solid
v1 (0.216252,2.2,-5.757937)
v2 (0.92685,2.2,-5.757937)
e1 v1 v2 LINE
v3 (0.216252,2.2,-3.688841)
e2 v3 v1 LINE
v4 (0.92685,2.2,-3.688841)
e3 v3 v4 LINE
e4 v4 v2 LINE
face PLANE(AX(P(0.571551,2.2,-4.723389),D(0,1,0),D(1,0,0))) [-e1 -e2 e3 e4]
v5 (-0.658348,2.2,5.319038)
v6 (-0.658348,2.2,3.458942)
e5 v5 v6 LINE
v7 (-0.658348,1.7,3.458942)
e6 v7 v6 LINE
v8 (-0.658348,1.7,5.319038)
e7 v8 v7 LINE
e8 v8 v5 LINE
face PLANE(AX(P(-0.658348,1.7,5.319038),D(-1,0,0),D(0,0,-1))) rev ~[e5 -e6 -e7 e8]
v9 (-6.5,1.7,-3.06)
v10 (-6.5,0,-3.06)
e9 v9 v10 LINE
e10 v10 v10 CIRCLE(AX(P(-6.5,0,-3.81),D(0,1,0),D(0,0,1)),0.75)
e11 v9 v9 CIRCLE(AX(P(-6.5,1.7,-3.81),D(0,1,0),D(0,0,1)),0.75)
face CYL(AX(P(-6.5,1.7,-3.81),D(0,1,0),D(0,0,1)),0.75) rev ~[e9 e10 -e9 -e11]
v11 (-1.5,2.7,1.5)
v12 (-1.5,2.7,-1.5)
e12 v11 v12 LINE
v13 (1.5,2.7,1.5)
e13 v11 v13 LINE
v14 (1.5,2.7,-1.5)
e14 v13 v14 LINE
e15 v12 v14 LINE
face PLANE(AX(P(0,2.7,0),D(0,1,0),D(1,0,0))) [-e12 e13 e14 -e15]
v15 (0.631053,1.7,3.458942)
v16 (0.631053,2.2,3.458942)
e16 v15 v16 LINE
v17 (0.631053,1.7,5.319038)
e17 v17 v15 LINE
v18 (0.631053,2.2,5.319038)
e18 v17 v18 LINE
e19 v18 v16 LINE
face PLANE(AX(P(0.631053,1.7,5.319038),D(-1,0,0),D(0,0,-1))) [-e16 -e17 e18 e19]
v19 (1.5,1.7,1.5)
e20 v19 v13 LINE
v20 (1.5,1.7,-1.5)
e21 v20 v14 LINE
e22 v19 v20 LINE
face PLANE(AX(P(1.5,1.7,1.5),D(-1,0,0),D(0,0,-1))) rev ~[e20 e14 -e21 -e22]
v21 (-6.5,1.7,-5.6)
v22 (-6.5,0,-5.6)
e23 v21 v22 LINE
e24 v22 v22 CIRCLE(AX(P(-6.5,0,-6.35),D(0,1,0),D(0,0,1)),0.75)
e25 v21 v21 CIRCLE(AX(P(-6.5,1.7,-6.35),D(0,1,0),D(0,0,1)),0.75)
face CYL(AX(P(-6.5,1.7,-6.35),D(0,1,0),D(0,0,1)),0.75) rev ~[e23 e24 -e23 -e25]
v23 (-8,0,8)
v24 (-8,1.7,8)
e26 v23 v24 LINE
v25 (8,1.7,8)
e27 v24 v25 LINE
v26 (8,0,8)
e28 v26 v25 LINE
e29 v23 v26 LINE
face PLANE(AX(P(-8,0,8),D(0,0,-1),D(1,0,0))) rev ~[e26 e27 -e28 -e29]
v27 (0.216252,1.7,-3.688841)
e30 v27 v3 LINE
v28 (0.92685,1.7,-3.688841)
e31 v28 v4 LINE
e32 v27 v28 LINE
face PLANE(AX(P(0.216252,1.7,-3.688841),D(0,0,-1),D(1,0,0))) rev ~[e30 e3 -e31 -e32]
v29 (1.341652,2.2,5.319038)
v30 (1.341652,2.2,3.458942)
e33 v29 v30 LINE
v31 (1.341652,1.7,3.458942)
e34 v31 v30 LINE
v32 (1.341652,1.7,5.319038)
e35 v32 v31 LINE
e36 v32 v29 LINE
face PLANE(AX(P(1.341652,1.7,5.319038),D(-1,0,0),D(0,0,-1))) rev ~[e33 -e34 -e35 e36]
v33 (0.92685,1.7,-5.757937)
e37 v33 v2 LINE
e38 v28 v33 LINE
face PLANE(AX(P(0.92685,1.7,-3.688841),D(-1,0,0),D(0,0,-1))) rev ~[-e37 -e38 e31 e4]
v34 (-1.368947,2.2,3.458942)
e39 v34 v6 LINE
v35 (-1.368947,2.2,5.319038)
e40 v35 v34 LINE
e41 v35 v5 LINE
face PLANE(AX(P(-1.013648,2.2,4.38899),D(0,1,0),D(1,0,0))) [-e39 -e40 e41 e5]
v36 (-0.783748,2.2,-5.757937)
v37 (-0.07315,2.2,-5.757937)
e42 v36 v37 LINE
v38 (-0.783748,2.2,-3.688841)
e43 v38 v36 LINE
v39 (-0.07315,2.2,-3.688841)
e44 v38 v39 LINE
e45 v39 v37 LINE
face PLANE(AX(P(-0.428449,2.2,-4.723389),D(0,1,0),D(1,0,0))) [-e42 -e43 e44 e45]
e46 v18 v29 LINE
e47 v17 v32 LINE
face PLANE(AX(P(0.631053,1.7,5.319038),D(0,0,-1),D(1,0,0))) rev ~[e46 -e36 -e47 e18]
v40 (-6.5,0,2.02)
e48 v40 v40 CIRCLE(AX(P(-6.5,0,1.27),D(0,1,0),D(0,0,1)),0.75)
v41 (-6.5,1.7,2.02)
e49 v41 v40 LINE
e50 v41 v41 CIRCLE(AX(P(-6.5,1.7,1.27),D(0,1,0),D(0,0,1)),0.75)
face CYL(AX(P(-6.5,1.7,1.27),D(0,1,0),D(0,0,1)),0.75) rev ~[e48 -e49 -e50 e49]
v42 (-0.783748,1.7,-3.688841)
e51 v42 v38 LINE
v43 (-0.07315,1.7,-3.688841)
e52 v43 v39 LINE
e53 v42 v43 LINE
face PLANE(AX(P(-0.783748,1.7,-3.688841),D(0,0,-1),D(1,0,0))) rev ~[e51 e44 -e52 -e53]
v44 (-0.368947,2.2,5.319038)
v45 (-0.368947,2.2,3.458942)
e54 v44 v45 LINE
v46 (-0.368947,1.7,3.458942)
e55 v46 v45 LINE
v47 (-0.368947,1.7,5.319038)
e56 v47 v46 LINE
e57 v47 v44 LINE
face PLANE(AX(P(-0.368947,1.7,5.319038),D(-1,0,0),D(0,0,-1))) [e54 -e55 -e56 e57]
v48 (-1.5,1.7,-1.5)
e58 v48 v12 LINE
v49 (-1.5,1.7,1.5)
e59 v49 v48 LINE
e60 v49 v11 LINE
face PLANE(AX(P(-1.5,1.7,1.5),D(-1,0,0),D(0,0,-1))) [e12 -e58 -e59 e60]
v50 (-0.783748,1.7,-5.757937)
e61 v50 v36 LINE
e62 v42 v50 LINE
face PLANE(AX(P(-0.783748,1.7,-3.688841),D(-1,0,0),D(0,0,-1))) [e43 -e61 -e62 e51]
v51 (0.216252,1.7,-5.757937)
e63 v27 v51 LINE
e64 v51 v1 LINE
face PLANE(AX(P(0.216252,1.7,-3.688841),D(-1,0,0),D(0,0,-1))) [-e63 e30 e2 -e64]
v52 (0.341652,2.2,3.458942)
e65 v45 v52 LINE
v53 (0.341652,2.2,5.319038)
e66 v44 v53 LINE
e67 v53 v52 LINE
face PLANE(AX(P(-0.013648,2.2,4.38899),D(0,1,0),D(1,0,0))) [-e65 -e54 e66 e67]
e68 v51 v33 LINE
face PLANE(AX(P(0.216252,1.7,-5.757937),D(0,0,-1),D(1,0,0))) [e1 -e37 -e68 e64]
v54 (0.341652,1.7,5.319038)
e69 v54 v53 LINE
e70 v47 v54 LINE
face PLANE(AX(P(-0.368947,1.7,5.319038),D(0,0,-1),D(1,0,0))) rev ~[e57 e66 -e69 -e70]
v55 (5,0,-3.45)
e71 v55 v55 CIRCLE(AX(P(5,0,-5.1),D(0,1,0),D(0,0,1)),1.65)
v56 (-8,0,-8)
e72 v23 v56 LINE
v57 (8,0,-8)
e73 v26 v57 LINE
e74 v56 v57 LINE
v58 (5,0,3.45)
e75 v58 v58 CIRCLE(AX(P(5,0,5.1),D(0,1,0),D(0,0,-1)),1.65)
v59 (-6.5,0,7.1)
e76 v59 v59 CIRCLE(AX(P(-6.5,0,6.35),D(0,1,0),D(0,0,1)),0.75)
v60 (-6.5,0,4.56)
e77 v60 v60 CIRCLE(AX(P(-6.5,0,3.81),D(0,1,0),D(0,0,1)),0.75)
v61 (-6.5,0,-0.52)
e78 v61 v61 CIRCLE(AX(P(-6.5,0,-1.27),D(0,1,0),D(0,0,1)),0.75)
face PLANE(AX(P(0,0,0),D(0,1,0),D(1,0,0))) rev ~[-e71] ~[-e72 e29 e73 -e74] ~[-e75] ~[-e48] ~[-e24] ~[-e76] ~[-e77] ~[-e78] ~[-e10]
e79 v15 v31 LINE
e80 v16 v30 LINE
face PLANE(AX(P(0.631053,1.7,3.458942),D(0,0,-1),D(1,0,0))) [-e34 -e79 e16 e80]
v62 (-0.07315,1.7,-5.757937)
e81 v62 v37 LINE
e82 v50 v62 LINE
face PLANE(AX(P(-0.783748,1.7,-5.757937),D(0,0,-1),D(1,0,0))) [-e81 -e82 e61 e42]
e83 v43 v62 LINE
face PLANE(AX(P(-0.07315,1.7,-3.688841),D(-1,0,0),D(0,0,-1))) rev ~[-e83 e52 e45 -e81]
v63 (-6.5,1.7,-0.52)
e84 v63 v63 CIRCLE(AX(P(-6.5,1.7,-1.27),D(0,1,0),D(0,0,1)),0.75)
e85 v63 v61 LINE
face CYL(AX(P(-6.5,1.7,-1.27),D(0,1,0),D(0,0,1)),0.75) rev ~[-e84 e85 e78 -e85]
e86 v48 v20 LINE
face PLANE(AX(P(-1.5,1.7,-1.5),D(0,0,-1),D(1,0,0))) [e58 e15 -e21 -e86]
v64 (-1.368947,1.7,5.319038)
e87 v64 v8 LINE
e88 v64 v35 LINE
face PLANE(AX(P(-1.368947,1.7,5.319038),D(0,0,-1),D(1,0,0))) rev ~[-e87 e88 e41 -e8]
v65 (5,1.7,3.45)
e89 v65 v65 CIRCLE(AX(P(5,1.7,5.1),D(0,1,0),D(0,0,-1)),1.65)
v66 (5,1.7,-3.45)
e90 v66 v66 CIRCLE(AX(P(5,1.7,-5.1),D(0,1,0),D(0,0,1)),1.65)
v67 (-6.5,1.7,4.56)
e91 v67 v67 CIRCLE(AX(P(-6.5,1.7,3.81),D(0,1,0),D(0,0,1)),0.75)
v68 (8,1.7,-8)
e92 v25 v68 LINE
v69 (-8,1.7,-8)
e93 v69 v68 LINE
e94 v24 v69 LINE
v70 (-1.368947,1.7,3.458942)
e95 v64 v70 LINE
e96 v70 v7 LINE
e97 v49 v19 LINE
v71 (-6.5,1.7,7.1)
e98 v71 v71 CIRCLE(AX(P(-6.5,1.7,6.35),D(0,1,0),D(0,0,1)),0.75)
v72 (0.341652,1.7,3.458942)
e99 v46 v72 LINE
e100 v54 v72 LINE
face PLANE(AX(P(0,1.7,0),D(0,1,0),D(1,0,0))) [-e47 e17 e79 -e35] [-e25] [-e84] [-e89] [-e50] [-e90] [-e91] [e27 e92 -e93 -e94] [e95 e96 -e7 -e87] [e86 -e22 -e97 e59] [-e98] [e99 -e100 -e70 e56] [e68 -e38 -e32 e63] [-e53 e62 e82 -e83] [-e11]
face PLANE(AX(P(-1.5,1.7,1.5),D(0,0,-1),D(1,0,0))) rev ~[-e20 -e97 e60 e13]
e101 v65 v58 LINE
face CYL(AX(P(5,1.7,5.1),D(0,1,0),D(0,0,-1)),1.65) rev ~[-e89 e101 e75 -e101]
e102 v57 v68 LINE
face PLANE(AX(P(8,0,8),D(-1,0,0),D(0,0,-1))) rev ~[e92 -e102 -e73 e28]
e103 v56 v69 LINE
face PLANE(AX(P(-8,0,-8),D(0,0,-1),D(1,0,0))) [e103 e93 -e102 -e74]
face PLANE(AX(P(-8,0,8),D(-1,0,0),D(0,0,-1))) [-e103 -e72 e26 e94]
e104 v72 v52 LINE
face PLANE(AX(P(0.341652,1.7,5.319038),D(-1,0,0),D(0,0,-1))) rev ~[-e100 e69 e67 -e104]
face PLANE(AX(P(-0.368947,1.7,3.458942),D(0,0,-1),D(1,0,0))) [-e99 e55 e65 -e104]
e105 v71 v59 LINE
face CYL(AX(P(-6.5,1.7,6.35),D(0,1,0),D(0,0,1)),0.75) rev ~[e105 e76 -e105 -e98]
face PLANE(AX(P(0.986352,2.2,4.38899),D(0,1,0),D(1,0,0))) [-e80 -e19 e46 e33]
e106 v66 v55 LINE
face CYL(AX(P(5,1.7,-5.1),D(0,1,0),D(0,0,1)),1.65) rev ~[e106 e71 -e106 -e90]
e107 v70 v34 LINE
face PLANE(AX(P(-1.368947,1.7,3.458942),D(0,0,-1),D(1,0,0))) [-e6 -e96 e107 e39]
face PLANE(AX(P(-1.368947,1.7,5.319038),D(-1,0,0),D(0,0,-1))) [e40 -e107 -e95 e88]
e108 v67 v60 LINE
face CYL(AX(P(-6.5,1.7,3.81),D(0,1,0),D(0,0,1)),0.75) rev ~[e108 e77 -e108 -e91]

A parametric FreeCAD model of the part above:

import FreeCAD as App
import Part
import Sketcher
from FreeCAD import Vector


def add_polygon(sketch, points):
    """Adds a closed chain of lines whose ends are joined by coincident constraints."""
    first, n = sketch.GeometryCount, len(points)
    for a, b in zip(points, points[1:] + points[:1]):
        sketch.addGeometry(Part.LineSegment(App.Vector(*a, 0), App.Vector(*b, 0)), False)
    for i in range(n):
        sketch.addConstraint(Sketcher.Constraint("Coincident", first + i, 2, first + (i + 1) % n, 1))

doc = App.newDocument("Part")
body = doc.addObject("PartDesign::Body", "Body")

sketch1 = body.newObject("Sketcher::SketchObject", "Sketch")
sketch1.AttachmentSupport = (doc.getObject("XZ_Plane"), [""])
sketch1.MapMode = "FlatFace"
add_polygon(sketch1, [(-8, -8), (-8, 8), (8, 8), (8, -8)])
sketch1.addConstraint(Sketcher.Constraint("Vertical", 0))
sketch1.addConstraint(Sketcher.Constraint("Horizontal", 1))
sketch1.addConstraint(Sketcher.Constraint("Vertical", 2))
sketch1.addConstraint(Sketcher.Constraint("Horizontal", 3))
sketch1.addConstraint(Sketcher.Constraint("Symmetric", 0, 2, 2, 2, -1, 1))
sketch1.addConstraint(Sketcher.Constraint("Equal", 3, 0))
sketch1.addConstraint(Sketcher.Constraint("DistanceX", 1, 1, 1, 2, 16.0))
pad1 = body.newObject("PartDesign::Pad", "Pad")
pad1.Profile = sketch1
pad1.Length = 1.7
pad1.Reversed = True

sketch2 = body.newObject("Sketcher::SketchObject", "Sketch001")
sketch2.AttachmentSupport = (doc.getObject("XZ_Plane"), [""])
sketch2.MapMode = "FlatFace"
sketch2.AttachmentOffset = App.Placement(Vector(0, 0, -1.7), App.Rotation())
sketch2.addGeometry(Part.Circle(Vector(-6.5, -6.3, 0), Vector(0, 0, 1), 0.8), False)
sketch2.addGeometry(Part.Circle(Vector(-6.5, -3.8, 0), Vector(0, 0, 1), 0.8), False)
sketch2.addGeometry(Part.Circle(Vector(-6.5, -1.3, 0), Vector(0, 0, 1), 0.8), False)
sketch2.addGeometry(Part.Circle(Vector(-6.5, 1.3, 0), Vector(0, 0, 1), 0.8), False)
sketch2.addGeometry(Part.Circle(Vector(-6.5, 3.8, 0), Vector(0, 0, 1), 0.8), False)
sketch2.addGeometry(Part.Circle(Vector(-6.5, 6.3, 0), Vector(0, 0, 1), 0.8), False)
sketch2.addConstraint(Sketcher.Constraint("Equal", 0, 1))
sketch2.addConstraint(Sketcher.Constraint("Equal", 1, 2))
sketch2.addConstraint(Sketcher.Constraint("Equal", 2, 3))
sketch2.addConstraint(Sketcher.Constraint("Equal", 3, 4))
sketch2.addConstraint(Sketcher.Constraint("Equal", 4, 5))
sketch2.addConstraint(Sketcher.Constraint("Symmetric", 2, 3, 3, 3, -1))
sketch2.addConstraint(Sketcher.Constraint("Symmetric", 1, 3, 4, 3, -1))
sketch2.addConstraint(Sketcher.Constraint("Symmetric", 0, 3, 5, 3, -1))
sketch2.addConstraint(Sketcher.Constraint("Vertical", 0, 3, 1, 3))
sketch2.addConstraint(Sketcher.Constraint("Vertical", 1, 3, 2, 3))
sketch2.addConstraint(Sketcher.Constraint("Diameter", 0, 1.5))
sketch2.addConstraint(Sketcher.Constraint("DistanceX", 0, 3, -1, 1, 6.5))
sketch2.addConstraint(Sketcher.Constraint("DistanceY", 0, 3, 5, 3, 12.7))
sketch2.addConstraint(Sketcher.Constraint("DistanceY", 1, 3, -1, 1, 3.81))
sketch2.addConstraint(Sketcher.Constraint("DistanceY", 2, 3, -1, 1, 1.27))
pocket1 = body.newObject("PartDesign::Pocket", "Pocket")
pocket1.Profile = sketch2
pocket1.Length = 1.7
pocket1.Reversed = True

sketch3 = body.newObject("Sketcher::SketchObject", "Sketch002")
sketch3.AttachmentSupport = (doc.getObject("XZ_Plane"), [""])
sketch3.MapMode = "FlatFace"
sketch3.AttachmentOffset = App.Placement(Vector(0, 0, -1.7), App.Rotation())
add_polygon(sketch3, [(-1.5, -1.5), (-1.5, 1.5), (1.5, 1.5), (1.5, -1.5)])
sketch3.addConstraint(Sketcher.Constraint("Vertical", 0))
sketch3.addConstraint(Sketcher.Constraint("Horizontal", 1))
sketch3.addConstraint(Sketcher.Constraint("Vertical", 2))
sketch3.addConstraint(Sketcher.Constraint("Horizontal", 3))
sketch3.addConstraint(Sketcher.Constraint("Symmetric", 0, 2, 2, 2, -1, 1))
sketch3.addConstraint(Sketcher.Constraint("Equal", 3, 0))
sketch3.addConstraint(Sketcher.Constraint("DistanceX", 1, 1, 1, 2, 3.0))
pad2 = body.newObject("PartDesign::Pad", "Pad001")
pad2.Profile = sketch3
pad2.Length = 1
pad2.Reversed = True

sketch4 = body.newObject("Sketcher::SketchObject", "Sketch003")
sketch4.AttachmentSupport = (doc.getObject("XZ_Plane"), [""])
sketch4.MapMode = "FlatFace"
sketch4.AttachmentOffset = App.Placement(Vector(0, 0, -1.7), App.Rotation())
add_polygon(sketch4, [(0.2, -5.8), (0.2, -3.7), (0.9, -3.7), (0.9, -5.8)])
add_polygon(sketch4, [(-0.8, -5.8), (-0.8, -3.7), (-0.1, -3.7), (-0.1, -5.8)])
add_polygon(sketch4, [(-1.4, 3.5), (-1.4, 5.3), (-0.7, 5.3), (-0.7, 3.5)])
add_polygon(sketch4, [(-0.4, 3.5), (-0.4, 5.3), (0.3, 5.3), (0.3, 3.5)])
add_polygon(sketch4, [(0.6, 3.5), (0.6, 5.3), (1.3, 5.3), (1.3, 3.5)])
sketch4.addConstraint(Sketcher.Constraint("Vertical", 0))
sketch4.addConstraint(Sketcher.Constraint("Horizontal", 1))
sketch4.addConstraint(Sketcher.Constraint("Vertical", 2))
sketch4.addConstraint(Sketcher.Constraint("Horizontal", 3))
sketch4.addConstraint(Sketcher.Constraint("Vertical", 4))
sketch4.addConstraint(Sketcher.Constraint("Horizontal", 5))
sketch4.addConstraint(Sketcher.Constraint("Vertical", 6))
sketch4.addConstraint(Sketcher.Constraint("Horizontal", 7))
sketch4.addConstraint(Sketcher.Constraint("Vertical", 8))
sketch4.addConstraint(Sketcher.Constraint("Horizontal", 9))
sketch4.addConstraint(Sketcher.Constraint("Vertical", 10))
sketch4.addConstraint(Sketcher.Constraint("Horizontal", 11))
sketch4.addConstraint(Sketcher.Constraint("Vertical", 12))
sketch4.addConstraint(Sketcher.Constraint("Horizontal", 13))
sketch4.addConstraint(Sketcher.Constraint("Vertical", 14))
sketch4.addConstraint(Sketcher.Constraint("Horizontal", 15))
sketch4.addConstraint(Sketcher.Constraint("Vertical", 16))
sketch4.addConstraint(Sketcher.Constraint("Horizontal", 17))
sketch4.addConstraint(Sketcher.Constraint("Vertical", 18))
sketch4.addConstraint(Sketcher.Constraint("Horizontal", 19))
sketch4.addConstraint(Sketcher.Constraint("Horizontal", 1, 2, 4, 2))
sketch4.addConstraint(Sketcher.Constraint("Horizontal", 3, 2, 6, 2))
sketch4.addConstraint(Sketcher.Constraint("Horizontal", 9, 2, 12, 2))
sketch4.addConstraint(Sketcher.Constraint("Horizontal", 11, 2, 14, 2))
sketch4.addConstraint(Sketcher.Constraint("Horizontal", 13, 2, 16, 2))
sketch4.addConstraint(Sketcher.Constraint("Horizontal", 15, 2, 18, 2))
sketch4.addConstraint(Sketcher.Constraint("Equal", 3, 5))
sketch4.addConstraint(Sketcher.Constraint("Equal", 7, 9))
sketch4.addConstraint(Sketcher.Constraint("Equal", 11, 13))
sketch4.addConstraint(Sketcher.Constraint("Equal", 15, 17))
sketch4.addConstraint(Sketcher.Constraint("DistanceX", 4, 2, 0, 2, 1.0))
sketch4.addConstraint(Sketcher.Constraint("DistanceX", 8, 2, 12, 2, 1.0))
sketch4.addConstraint(Sketcher.Constraint("DistanceX", 12, 2, 16, 2, 1.0))
sketch4.addConstraint(Sketcher.Constraint("DistanceX", 1, 1, 1, 2, 0.710598))
sketch4.addConstraint(Sketcher.Constraint("DistanceX", 8, 2, 4, 2, 0.585199))
sketch4.addConstraint(Sketcher.Constraint("DistanceY", 0, 1, 0, 2, 2.069095))
sketch4.addConstraint(Sketcher.Constraint("DistanceY", 8, 1, 8, 2, 1.860096))
sketch4.addConstraint(Sketcher.Constraint("DistanceX", -1, 1, 0, 2, 0.216252))
sketch4.addConstraint(Sketcher.Constraint("DistanceY", 0, 2, -1, 1, 3.688841))
sketch4.addConstraint(Sketcher.Constraint("DistanceY", -1, 1, 10, 2, 3.458942))
pad3 = body.newObject("PartDesign::Pad", "Pad002")
pad3.Profile = sketch4
pad3.Length = 0.5
pad3.Reversed = True

sketch5 = body.newObject("Sketcher::SketchObject", "Sketch004")
sketch5.AttachmentSupport = (doc.getObject("XZ_Plane"), [""])
sketch5.MapMode = "FlatFace"
sketch5.AttachmentOffset = App.Placement(Vector(0, 0, -1.7), App.Rotation())
sketch5.addGeometry(Part.Circle(Vector(5, -5.1, 0), Vector(0, 0, 1), 1.6), False)
sketch5.addGeometry(Part.Circle(Vector(5, 5.1, 0), Vector(0, 0, 1), 1.6), False)
sketch5.addConstraint(Sketcher.Constraint("Equal", 0, 1))
sketch5.addConstraint(Sketcher.Constraint("Symmetric", 0, 3, 1, 3, -1))
sketch5.addConstraint(Sketcher.Constraint("Diameter", 0, 3.3))
sketch5.addConstraint(Sketcher.Constraint("DistanceX", -1, 1, 0, 3, 5.0))
sketch5.addConstraint(Sketcher.Constraint("DistanceY", 0, 3, -1, 1, 5.1))
pocket2 = body.newObject("PartDesign::Pocket", "Pocket001")
pocket2.Profile = sketch5
pocket2.Type = "ThroughAll"
pocket2.Reversed = True

doc.recompute()
